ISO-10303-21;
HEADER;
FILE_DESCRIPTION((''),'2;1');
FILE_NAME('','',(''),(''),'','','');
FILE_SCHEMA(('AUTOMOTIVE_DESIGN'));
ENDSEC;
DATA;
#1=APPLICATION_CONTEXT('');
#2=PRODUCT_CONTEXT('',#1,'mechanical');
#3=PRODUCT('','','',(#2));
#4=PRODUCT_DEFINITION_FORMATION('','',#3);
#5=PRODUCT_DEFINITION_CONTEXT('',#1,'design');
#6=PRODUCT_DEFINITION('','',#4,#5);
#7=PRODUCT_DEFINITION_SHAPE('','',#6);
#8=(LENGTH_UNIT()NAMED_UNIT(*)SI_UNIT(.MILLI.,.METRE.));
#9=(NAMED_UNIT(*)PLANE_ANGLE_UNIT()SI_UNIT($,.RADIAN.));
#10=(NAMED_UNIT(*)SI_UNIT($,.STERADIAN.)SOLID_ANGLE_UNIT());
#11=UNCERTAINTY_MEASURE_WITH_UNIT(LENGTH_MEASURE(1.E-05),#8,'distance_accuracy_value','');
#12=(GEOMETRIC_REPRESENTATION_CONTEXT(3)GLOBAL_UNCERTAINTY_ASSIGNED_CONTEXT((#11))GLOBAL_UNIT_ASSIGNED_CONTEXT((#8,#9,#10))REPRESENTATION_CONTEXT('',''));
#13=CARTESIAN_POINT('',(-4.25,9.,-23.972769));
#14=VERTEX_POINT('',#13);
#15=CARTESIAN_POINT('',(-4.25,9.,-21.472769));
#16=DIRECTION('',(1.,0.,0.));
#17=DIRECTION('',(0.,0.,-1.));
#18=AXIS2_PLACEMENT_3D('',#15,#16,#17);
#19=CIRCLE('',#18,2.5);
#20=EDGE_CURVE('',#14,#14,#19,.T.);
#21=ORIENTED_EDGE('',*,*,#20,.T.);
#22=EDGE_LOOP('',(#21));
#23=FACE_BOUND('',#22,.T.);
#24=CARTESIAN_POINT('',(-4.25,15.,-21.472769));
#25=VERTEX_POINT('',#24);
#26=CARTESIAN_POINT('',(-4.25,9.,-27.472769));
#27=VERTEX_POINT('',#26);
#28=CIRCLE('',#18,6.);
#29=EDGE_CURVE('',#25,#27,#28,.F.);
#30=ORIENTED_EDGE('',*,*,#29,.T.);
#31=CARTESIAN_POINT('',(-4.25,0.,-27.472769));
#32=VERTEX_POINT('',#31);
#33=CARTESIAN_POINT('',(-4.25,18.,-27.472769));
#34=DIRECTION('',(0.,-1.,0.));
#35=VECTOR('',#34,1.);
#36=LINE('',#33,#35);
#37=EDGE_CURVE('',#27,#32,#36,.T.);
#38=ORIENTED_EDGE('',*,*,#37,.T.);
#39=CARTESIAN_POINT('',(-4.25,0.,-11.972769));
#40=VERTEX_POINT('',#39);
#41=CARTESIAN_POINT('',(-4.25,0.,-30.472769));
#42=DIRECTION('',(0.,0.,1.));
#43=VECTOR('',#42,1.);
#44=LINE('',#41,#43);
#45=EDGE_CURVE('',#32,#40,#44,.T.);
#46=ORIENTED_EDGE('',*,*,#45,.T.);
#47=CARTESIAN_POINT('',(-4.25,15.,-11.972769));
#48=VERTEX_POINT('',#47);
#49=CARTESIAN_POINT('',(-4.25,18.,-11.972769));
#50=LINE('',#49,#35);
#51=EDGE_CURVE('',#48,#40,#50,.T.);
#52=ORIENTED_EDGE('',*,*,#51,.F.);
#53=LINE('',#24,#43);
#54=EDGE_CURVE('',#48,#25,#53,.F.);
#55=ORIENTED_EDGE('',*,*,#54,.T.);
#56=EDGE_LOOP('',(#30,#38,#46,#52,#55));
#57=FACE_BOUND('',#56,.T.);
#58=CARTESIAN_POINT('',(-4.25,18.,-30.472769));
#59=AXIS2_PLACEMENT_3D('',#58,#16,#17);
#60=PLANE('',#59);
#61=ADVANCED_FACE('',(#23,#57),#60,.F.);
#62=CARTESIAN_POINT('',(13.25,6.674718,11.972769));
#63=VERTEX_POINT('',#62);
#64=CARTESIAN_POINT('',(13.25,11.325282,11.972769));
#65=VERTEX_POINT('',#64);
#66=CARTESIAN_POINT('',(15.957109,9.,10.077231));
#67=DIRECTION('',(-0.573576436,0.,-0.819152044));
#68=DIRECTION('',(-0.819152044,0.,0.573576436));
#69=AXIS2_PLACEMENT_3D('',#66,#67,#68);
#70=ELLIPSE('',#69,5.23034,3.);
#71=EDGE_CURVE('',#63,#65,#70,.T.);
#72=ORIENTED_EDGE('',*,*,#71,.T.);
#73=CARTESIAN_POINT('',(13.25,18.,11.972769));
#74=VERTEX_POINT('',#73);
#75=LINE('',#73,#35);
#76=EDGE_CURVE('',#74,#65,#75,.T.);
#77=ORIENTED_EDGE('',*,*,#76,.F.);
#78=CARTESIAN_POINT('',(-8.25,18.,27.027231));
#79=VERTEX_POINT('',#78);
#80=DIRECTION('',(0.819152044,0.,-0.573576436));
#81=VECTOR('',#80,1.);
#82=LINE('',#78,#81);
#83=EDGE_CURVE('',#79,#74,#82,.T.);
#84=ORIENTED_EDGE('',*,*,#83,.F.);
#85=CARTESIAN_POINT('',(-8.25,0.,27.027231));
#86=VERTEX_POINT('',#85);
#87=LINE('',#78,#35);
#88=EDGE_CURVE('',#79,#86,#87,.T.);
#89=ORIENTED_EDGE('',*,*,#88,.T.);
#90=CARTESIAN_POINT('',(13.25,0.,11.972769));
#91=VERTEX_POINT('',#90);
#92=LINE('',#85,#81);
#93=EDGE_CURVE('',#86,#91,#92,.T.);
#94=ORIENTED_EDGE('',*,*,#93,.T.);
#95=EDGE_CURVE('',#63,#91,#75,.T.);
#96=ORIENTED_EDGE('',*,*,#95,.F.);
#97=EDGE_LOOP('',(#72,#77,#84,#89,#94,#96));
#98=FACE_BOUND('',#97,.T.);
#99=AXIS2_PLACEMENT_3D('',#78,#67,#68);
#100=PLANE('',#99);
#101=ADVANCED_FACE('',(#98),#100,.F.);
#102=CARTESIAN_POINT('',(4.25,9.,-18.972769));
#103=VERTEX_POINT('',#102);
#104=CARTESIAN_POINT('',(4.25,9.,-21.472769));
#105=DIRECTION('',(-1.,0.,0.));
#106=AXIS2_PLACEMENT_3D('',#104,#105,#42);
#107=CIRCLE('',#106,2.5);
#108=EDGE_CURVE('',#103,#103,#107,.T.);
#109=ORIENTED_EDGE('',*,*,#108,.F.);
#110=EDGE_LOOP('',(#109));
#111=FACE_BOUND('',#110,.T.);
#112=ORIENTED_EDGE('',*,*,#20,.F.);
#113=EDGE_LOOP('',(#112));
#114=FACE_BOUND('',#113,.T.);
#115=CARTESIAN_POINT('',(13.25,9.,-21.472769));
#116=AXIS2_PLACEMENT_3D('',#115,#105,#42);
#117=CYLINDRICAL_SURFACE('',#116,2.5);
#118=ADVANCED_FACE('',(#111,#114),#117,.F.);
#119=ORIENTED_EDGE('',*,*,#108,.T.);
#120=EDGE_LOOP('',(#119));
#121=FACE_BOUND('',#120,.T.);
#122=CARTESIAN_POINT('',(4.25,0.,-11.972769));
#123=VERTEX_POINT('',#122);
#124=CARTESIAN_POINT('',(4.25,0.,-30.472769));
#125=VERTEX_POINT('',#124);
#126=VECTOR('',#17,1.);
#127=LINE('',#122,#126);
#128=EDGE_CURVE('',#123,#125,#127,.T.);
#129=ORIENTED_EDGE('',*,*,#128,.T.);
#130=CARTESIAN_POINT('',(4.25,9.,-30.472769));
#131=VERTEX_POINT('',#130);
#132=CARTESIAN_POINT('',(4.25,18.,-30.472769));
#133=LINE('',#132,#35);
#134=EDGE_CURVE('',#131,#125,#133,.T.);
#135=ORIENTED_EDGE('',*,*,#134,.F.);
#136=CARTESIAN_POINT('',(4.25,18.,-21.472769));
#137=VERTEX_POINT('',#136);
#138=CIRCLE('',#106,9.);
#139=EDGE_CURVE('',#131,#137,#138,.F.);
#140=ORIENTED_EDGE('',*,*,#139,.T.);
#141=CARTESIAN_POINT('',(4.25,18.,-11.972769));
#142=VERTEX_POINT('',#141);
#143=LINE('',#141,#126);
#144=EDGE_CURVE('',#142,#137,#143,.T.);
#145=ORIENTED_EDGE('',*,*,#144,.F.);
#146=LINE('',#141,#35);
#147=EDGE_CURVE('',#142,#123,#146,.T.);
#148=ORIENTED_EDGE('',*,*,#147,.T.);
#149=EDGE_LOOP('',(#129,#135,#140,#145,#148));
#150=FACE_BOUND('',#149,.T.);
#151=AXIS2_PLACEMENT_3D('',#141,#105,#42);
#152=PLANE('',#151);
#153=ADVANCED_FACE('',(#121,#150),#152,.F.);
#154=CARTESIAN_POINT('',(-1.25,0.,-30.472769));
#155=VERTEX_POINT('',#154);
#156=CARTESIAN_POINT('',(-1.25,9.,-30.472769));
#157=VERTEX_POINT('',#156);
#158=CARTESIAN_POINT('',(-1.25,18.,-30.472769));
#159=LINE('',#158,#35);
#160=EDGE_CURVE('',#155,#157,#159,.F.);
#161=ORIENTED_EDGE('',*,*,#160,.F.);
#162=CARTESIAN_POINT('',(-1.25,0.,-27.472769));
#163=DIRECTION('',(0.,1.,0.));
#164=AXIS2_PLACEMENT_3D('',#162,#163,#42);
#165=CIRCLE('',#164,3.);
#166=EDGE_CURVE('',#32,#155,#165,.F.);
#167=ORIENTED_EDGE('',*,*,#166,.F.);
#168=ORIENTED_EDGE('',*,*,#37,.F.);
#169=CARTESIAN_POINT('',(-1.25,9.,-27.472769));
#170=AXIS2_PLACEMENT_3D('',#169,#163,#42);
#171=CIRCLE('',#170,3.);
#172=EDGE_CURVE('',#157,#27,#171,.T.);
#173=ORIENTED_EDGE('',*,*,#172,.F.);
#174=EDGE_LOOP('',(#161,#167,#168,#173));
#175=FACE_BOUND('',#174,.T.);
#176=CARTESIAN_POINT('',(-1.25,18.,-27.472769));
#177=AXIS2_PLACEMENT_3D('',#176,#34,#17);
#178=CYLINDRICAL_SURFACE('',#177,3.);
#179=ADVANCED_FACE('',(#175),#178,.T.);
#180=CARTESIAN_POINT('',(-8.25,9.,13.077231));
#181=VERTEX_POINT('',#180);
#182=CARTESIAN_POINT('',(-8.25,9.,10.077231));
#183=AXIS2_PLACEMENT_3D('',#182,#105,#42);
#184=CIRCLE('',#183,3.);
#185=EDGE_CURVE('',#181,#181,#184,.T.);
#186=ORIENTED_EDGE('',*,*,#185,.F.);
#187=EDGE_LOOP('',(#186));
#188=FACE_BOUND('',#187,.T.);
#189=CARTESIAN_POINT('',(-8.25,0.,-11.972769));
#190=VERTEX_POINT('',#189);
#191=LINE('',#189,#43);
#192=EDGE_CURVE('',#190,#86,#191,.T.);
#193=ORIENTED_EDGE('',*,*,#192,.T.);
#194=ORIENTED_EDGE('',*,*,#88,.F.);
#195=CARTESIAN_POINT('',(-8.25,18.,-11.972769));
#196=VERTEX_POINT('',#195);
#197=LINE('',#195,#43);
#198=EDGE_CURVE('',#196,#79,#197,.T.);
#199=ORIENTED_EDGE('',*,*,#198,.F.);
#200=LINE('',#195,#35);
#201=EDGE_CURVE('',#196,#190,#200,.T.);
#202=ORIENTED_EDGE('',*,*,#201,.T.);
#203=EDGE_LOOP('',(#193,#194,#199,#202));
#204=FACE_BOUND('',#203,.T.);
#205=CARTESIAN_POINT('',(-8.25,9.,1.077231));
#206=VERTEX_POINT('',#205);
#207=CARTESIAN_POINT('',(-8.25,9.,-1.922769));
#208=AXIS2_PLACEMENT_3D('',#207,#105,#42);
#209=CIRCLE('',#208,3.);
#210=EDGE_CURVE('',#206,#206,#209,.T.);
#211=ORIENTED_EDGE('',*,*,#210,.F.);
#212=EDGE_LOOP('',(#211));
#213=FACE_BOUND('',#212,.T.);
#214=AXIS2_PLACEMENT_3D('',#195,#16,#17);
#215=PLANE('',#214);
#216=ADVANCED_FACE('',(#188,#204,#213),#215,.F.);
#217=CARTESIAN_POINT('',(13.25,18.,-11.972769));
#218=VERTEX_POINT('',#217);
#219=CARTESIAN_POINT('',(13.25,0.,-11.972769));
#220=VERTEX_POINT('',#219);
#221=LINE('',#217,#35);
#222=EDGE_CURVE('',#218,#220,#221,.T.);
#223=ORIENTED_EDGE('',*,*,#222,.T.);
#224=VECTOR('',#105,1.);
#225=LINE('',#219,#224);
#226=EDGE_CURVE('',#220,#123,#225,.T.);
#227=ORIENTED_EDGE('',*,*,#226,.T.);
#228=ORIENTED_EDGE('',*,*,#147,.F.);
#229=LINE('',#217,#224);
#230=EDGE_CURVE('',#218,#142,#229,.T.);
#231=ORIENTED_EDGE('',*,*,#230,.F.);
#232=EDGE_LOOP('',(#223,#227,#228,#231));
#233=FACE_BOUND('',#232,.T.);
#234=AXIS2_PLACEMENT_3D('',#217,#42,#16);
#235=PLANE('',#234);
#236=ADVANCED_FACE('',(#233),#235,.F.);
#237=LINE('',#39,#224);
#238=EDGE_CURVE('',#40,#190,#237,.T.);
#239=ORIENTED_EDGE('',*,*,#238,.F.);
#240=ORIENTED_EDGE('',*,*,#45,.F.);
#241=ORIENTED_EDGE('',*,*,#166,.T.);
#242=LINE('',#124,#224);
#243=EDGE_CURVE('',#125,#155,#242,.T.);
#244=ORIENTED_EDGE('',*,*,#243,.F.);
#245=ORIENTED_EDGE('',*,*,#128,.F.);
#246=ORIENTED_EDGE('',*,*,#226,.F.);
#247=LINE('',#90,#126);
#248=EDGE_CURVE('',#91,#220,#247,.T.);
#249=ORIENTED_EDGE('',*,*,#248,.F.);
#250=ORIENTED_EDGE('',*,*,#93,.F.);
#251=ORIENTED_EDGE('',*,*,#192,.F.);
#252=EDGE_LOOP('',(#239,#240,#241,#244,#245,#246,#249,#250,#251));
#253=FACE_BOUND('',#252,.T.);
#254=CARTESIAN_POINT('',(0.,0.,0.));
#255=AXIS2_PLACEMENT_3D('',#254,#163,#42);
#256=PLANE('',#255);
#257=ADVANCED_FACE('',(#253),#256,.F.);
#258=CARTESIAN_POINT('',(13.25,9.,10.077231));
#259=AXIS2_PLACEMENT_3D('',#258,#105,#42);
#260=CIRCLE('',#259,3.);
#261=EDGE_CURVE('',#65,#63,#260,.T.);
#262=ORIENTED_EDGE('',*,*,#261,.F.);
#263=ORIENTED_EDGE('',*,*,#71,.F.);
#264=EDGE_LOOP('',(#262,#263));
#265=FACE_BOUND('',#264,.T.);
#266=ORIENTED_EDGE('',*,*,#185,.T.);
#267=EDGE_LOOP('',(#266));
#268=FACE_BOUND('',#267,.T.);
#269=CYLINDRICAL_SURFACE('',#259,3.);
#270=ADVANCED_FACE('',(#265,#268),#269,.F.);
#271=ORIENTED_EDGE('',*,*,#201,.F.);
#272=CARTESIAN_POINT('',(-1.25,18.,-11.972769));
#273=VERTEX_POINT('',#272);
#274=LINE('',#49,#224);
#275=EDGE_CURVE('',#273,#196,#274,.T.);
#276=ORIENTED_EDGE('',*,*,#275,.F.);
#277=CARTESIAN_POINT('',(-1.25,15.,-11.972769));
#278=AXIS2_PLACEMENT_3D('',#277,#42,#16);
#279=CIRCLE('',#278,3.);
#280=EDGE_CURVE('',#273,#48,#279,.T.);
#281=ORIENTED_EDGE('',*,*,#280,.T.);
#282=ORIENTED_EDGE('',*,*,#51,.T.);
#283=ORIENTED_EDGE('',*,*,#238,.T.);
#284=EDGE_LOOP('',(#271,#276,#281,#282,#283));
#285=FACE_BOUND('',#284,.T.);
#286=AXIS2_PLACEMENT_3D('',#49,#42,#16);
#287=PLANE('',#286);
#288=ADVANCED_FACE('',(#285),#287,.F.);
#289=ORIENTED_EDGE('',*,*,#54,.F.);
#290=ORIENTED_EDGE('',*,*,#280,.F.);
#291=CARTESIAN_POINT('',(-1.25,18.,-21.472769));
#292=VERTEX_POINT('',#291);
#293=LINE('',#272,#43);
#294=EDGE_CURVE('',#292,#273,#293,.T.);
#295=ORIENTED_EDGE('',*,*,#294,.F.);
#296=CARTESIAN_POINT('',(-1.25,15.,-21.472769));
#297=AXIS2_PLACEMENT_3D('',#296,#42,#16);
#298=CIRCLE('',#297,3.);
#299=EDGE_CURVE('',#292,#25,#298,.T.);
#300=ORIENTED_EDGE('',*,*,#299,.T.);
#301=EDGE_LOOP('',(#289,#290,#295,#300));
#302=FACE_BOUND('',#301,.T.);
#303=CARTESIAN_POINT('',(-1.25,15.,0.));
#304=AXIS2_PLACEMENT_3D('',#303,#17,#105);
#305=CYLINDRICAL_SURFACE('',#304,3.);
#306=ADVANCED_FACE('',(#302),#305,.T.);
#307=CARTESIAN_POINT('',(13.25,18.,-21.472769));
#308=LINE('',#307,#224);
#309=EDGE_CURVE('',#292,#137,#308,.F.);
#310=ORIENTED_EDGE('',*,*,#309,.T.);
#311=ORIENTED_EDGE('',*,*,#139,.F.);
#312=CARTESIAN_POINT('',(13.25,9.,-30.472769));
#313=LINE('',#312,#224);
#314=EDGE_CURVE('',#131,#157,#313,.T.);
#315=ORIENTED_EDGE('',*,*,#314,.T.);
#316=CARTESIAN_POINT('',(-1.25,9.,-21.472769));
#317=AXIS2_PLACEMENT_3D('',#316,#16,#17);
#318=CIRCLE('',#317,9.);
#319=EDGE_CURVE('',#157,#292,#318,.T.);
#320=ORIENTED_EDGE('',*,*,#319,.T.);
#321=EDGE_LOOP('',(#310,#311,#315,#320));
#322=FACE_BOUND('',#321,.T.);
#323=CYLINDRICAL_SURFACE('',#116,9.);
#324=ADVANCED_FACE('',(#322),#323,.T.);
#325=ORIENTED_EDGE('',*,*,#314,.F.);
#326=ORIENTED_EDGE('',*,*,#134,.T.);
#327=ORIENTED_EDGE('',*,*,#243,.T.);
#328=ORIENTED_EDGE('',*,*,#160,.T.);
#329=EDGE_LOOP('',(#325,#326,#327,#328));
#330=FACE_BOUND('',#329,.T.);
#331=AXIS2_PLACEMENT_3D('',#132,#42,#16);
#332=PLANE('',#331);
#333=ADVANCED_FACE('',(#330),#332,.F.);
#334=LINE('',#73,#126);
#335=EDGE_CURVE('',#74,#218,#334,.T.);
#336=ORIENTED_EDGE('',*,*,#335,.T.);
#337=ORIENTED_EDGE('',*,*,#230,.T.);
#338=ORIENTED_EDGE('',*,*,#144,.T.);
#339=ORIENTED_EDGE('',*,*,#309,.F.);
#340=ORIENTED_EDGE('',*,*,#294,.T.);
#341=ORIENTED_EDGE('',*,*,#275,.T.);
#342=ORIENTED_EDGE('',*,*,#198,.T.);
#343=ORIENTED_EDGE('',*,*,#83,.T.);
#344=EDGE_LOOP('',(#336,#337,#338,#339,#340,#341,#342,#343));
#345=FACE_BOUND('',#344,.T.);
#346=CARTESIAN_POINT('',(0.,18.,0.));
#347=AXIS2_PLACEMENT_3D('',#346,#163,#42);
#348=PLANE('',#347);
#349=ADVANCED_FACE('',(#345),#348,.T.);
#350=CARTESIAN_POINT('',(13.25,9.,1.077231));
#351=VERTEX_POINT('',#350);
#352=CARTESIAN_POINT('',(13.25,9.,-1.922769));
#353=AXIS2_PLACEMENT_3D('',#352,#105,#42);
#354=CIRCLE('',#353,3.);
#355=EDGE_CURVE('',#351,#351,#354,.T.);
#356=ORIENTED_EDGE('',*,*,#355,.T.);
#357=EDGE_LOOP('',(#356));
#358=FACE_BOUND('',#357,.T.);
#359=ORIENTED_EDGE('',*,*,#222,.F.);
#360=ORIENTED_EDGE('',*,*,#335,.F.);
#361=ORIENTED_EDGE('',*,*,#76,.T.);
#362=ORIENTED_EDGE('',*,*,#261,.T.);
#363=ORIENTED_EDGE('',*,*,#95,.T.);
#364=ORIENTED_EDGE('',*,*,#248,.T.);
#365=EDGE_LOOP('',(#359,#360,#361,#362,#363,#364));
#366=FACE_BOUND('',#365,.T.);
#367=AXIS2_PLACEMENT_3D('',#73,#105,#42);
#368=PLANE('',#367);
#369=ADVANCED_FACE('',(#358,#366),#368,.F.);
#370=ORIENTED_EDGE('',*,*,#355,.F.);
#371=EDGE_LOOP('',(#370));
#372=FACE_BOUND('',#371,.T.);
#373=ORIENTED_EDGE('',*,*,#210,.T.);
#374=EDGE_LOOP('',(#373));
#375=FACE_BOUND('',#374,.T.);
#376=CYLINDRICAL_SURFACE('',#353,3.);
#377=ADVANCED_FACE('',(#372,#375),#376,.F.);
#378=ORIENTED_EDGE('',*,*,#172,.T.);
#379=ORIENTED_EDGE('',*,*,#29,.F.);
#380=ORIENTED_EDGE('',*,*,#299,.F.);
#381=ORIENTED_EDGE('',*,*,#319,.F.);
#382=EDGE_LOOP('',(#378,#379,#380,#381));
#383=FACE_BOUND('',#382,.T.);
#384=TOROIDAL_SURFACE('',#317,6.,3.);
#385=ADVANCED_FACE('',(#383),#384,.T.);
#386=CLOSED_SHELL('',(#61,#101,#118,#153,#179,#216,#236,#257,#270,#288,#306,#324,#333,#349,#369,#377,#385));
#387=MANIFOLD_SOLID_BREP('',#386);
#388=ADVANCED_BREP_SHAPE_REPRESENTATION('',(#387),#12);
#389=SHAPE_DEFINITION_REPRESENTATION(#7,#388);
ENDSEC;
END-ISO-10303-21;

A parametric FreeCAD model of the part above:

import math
import FreeCAD as App
import Part
import Sketcher

V = App.Vector
Q = App.Units.Quantity


def edges_at(feature, points):
    """Names of the edges that pass closest to the given points."""
    edges = feature.Shape.Edges
    near = lambda p: min(range(len(edges)), key=lambda i: edges[i].distToShape(Part.Vertex(*p))[0])
    return sorted({f"Edge{near(p) + 1}" for p in points})

doc = App.newDocument("Part")
body = doc.addObject("PartDesign::Body", "Body")

# Sketch on XZ plane
sketch1 = body.newObject("Sketcher::SketchObject", "Sketch")
sketch1.AttachmentSupport = (doc.getObject("XZ_Plane"), [""])
sketch1.MapMode = "FlatFace"
sketch1.addGeometry(Part.LineSegment(V(-8.2, -12, 0), V(-8.2, 27, 0)), False)
sketch1.addGeometry(Part.LineSegment(V(-8.2, 27, 0), V(13.2, 12, 0)), False)
sketch1.addGeometry(Part.LineSegment(V(13.2, 12, 0), V(13.2, -12, 0)), False)
sketch1.addGeometry(Part.LineSegment(V(13.2, -12, 0), V(4.2, -12, 0)), False)
sketch1.addGeometry(Part.LineSegment(V(4.2, -12, 0), V(4.2, -30.5, 0)), False)
sketch1.addGeometry(Part.LineSegment(V(4.2, -30.5, 0), V(-4.2, -30.5, 0)), False)
sketch1.addGeometry(Part.LineSegment(V(-4.2, -30.5, 0), V(-4.2, -12, 0)), False)
sketch1.addGeometry(Part.LineSegment(V(-4.2, -12, 0), V(-8.2, -12, 0)), False)
sketch1.addConstraint(Sketcher.Constraint("Coincident", 0, 2, 1, 1))
sketch1.addConstraint(Sketcher.Constraint("Coincident", 1, 2, 2, 1))
sketch1.addConstraint(Sketcher.Constraint("Coincident", 2, 2, 3, 1))
sketch1.addConstraint(Sketcher.Constraint("Coincident", 3, 2, 4, 1))
sketch1.addConstraint(Sketcher.Constraint("Coincident", 4, 2, 5, 1))
sketch1.addConstraint(Sketcher.Constraint("Coincident", 5, 2, 6, 1))
sketch1.addConstraint(Sketcher.Constraint("Coincident", 6, 2, 7, 1))
sketch1.addConstraint(Sketcher.Constraint("Coincident", 7, 2, 0, 1))
sketch1.addConstraint(Sketcher.Constraint("Vertical", 0))
sketch1.addConstraint(Sketcher.Constraint("Vertical", 2))
sketch1.addConstraint(Sketcher.Constraint("Horizontal", 3))
sketch1.addConstraint(Sketcher.Constraint("Vertical", 4))
sketch1.addConstraint(Sketcher.Constraint("Horizontal", 5))
sketch1.addConstraint(Sketcher.Constraint("Vertical", 6))
sketch1.addConstraint(Sketcher.Constraint("Horizontal", 7))
sketch1.addConstraint(Sketcher.Constraint("Symmetric", 3, 2, 6, 2, -2))
sketch1.addConstraint(Sketcher.Constraint("DistanceX", 3, 2, 3, 1, Q("9 mm")))
sketch1.addConstraint(Sketcher.Constraint("DistanceX", 7, 2, 7, 1, Q("4 mm")))
sketch1.addConstraint(Sketcher.Constraint("DistanceY", 0, 1, 0, 2, Q("39 mm")))
sketch1.addConstraint(Sketcher.Constraint("Angle", 1, Q("-35 deg")))
sketch1.addConstraint(Sketcher.Constraint("DistanceX", 5, 2, 5, 1, Q("8.5 mm")))
sketch1.addConstraint(Sketcher.Constraint("DistanceY", 4, 2, 4, 1, Q("18.5 mm")))
sketch1.addConstraint(Sketcher.Constraint("DistanceY", -1, 1, 0, 2, Q("27.027231 mm")))
pad1 = body.newObject("PartDesign::Pad", "Pad")
pad1.Profile = sketch1
pad1.Length = 18
pad1.Reversed = True

# Sketch on YZ plane
sketch2 = body.newObject("Sketcher::SketchObject", "Sketch001")
sketch2.AttachmentSupport = (doc.getObject("YZ_Plane"), [""])
sketch2.MapMode = "FlatFace"
sketch2.AttachmentOffset = App.Placement(V(0, 0, -8.25), App.Rotation())
sketch2.addGeometry(Part.Circle(V(9, -21.5, 0), V(0, 0, 1), 2.5), False)
sketch2.addGeometry(Part.Circle(V(9, -1.9, 0), V(0, 0, 1), 3), False)
sketch2.addGeometry(Part.Circle(V(9, 10.1, 0), V(0, 0, 1), 3), False)
sketch2.addGeometry(Part.LineSegment(V(18, -30.5, 0), V(9, -30.5, 0)), False)
sketch2.addGeometry(Part.ArcOfCircle(Part.Circle(V(9, -21.5, 0), V(0, 0, 1), 9), math.radians(-90), math.radians(0)), False)
sketch2.addGeometry(Part.LineSegment(V(18, -21.5, 0), V(18, -30.5, 0)), False)
sketch2.addConstraint(Sketcher.Constraint("Tangent", 3, 2, 4, 1))
sketch2.addConstraint(Sketcher.Constraint("Tangent", 4, 2, 5, 1))
sketch2.addConstraint(Sketcher.Constraint("Coincident", 5, 2, 3, 1))
sketch2.addConstraint(Sketcher.Constraint("Horizontal", 3))
sketch2.addConstraint(Sketcher.Constraint("Vertical", 5))
sketch2.addConstraint(Sketcher.Constraint("Coincident", 4, 3, 0, 3))
sketch2.addConstraint(Sketcher.Constraint("Equal", 1, 2))
sketch2.addConstraint(Sketcher.Constraint("Vertical", 0, 3, 1, 3))
sketch2.addConstraint(Sketcher.Constraint("Vertical", 1, 3, 2, 3))
sketch2.addConstraint(Sketcher.Constraint("Diameter", 0, Q("5 mm")))
sketch2.addConstraint(Sketcher.Constraint("Diameter", 1, Q("6 mm")))
sketch2.addConstraint(Sketcher.Constraint("Radius", 4, Q("9 mm")))
sketch2.addConstraint(Sketcher.Constraint("DistanceX", -1, 1, 0, 3, Q("9 mm")))
sketch2.addConstraint(Sketcher.Constraint("DistanceY", 1, 3, 2, 3, Q("12 mm")))
sketch2.addConstraint(Sketcher.Constraint("DistanceY", 0, 3, 1, 3, Q("19.55 mm")))
sketch2.addConstraint(Sketcher.Constraint("DistanceY", 0, 3, -1, 1, Q("21.472769 mm")))
pocket1 = body.newObject("PartDesign::Pocket", "Pocket")
pocket1.Profile = sketch2
pocket1.Type = "ThroughAll"
pocket1.Reversed = True
doc.recompute()

fillet = body.newObject("PartDesign::Fillet", "Fillet")
fillet.Base = (pocket1, edges_at(pocket1, [(-4.25, 18, -16.723), (-4.25, 4.5, -30.473), (-4.25, 15.364, -27.837)]))
fillet.Radius = 3

doc.recompute()
